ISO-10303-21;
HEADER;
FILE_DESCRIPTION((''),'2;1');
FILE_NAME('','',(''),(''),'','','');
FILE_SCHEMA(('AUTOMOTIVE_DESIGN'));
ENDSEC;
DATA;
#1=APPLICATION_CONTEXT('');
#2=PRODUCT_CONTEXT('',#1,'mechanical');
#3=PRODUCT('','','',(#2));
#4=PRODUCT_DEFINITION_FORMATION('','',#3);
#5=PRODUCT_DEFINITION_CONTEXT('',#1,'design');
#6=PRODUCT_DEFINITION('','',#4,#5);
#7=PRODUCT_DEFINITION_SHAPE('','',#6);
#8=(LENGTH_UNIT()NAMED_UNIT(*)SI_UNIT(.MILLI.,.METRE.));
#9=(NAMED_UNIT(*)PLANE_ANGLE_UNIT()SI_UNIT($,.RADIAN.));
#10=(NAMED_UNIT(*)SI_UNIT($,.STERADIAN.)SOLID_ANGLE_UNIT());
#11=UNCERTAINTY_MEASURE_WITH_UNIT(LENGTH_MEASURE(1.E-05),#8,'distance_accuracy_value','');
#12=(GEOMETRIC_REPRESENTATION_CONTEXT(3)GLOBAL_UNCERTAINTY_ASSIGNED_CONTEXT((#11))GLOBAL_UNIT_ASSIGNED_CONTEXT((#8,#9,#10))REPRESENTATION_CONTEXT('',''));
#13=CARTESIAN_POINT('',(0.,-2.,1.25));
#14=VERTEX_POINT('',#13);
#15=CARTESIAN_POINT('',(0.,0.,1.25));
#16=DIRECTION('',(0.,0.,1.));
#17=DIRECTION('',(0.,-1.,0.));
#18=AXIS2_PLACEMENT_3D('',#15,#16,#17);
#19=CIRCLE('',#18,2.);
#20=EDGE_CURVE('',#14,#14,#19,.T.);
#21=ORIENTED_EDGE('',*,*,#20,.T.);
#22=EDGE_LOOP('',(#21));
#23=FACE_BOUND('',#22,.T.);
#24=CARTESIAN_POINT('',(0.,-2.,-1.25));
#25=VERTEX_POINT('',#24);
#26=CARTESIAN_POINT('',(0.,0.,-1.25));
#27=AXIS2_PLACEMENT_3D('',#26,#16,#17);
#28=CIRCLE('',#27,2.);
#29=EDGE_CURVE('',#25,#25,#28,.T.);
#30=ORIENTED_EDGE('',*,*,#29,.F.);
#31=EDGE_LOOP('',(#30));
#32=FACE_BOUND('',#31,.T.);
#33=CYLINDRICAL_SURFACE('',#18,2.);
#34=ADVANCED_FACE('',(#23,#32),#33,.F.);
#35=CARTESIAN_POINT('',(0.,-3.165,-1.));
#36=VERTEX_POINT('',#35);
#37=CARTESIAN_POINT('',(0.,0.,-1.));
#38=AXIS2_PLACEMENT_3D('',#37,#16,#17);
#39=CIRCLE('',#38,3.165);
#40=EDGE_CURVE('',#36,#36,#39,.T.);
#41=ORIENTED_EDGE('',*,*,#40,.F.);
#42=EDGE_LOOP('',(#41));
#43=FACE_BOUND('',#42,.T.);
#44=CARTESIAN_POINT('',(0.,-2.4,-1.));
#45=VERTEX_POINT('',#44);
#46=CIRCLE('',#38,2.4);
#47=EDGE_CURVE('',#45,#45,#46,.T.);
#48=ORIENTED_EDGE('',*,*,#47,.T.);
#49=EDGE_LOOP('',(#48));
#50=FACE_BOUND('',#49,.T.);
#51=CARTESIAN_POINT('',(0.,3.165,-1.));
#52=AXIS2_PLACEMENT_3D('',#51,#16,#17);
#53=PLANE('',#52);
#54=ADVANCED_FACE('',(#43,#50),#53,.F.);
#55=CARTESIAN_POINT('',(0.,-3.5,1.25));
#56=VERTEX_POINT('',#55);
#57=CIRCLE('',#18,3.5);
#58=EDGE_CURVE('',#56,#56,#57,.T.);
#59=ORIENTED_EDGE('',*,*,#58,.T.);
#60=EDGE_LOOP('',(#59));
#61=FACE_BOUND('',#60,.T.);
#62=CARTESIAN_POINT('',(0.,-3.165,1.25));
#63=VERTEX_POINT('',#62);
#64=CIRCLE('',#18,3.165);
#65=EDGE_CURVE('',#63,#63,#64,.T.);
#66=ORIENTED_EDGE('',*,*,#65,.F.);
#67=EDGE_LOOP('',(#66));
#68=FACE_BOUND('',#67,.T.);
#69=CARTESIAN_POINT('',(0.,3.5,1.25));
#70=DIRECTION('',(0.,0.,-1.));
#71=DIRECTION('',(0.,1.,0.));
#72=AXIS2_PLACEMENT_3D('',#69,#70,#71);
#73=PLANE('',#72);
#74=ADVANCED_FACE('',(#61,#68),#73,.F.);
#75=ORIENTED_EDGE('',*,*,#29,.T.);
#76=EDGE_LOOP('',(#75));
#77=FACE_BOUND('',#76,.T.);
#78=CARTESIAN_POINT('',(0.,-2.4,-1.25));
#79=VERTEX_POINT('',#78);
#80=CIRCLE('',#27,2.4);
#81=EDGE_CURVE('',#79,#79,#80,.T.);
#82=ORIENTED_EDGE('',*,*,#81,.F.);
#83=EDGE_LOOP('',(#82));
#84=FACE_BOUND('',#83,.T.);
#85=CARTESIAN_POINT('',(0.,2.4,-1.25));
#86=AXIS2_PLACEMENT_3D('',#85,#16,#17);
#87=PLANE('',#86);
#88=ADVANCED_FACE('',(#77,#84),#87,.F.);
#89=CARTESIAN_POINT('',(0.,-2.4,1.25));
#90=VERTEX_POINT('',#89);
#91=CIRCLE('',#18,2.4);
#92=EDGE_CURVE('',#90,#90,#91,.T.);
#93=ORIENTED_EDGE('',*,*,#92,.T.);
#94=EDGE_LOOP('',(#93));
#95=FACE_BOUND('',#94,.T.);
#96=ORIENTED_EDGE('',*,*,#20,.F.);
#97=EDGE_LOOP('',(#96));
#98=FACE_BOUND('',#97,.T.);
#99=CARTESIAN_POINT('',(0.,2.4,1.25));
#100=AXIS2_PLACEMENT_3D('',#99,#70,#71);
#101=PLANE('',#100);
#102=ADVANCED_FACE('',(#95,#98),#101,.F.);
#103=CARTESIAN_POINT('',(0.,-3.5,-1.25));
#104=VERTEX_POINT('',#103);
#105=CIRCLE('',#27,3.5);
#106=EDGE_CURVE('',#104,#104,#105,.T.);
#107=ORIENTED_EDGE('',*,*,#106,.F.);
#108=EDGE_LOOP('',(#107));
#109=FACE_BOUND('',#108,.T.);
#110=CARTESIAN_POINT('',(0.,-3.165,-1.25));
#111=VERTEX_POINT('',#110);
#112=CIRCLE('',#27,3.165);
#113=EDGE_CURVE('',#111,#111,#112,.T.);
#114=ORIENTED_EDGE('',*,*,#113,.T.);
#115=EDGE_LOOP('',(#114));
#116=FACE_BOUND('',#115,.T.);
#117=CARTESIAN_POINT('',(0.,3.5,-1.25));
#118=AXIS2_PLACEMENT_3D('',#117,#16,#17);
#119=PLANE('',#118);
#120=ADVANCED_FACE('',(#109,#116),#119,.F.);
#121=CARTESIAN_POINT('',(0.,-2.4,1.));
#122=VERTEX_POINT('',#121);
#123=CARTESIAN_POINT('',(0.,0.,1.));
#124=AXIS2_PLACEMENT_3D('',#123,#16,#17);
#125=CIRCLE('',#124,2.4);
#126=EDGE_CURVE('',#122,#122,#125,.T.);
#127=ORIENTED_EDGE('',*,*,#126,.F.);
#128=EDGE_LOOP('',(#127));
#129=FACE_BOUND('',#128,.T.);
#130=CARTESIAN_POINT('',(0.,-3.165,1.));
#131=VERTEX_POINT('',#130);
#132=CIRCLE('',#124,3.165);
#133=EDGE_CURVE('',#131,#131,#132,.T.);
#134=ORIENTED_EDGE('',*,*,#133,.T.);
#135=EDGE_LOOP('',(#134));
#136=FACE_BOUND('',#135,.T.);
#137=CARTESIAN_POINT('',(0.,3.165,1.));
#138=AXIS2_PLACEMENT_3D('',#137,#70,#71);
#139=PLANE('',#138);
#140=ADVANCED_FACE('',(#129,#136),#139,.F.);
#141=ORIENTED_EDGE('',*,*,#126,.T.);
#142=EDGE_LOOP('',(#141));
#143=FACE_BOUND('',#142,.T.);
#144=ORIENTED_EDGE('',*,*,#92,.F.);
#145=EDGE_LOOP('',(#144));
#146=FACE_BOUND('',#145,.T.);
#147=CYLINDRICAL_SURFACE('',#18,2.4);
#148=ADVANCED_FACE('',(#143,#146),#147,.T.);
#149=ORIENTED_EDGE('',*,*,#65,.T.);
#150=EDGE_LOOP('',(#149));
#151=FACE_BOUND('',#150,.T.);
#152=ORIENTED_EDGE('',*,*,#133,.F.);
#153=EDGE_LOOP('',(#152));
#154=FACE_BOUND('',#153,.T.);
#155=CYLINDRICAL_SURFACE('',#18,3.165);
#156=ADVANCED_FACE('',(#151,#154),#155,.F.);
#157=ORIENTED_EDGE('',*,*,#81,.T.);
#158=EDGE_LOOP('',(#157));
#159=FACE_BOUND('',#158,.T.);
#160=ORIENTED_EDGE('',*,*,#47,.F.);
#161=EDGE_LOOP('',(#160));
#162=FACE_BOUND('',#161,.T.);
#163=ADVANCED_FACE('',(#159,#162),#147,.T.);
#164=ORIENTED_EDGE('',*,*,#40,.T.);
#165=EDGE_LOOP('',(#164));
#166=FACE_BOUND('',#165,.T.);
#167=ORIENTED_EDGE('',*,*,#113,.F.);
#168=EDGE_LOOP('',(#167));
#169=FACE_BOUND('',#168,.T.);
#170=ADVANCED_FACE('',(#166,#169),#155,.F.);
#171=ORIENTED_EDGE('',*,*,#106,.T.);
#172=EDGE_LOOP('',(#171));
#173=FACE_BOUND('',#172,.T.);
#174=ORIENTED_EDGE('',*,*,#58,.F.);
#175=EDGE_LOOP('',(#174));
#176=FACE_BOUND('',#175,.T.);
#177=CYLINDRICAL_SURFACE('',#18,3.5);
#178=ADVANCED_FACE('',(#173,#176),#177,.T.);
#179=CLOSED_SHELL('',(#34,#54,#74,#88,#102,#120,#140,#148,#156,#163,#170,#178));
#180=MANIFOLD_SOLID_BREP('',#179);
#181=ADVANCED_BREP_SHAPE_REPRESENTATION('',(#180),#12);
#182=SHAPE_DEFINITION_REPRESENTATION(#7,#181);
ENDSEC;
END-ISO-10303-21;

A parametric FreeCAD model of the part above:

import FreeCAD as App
import Part
import Sketcher
from FreeCAD import Vector

doc = App.newDocument("Part")
params = doc.addObject("Spreadsheet::Sheet", "Params")
for row, (alias, value) in enumerate([
    ("sketch1_width", "0.4 mm"),
    ("sketch1_height", "2.5 mm"),
    ("revolution_angle", "360 deg"),
], start=1):
    params.set(f"A{row}", alias)
    params.set(f"B{row}", "=" + value)
    params.setAlias(f"B{row}", alias)

body = doc.addObject("PartDesign::Body", "Body")

sketch1 = body.newObject("Sketcher::SketchObject", "Sketch")
sketch1.AttachmentSupport = (doc.getObject("YZ_Plane"), [""])
sketch1.MapMode = "FlatFace"
sketch1.addGeometry(Part.LineSegment(Vector(3.5, -1.25, 0), Vector(3.5, 1.25, 0)), False)
sketch1.addGeometry(Part.LineSegment(Vector(3.5, 1.25, 0), Vector(3.17, 1.25, 0)), False)
sketch1.addGeometry(Part.LineSegment(Vector(3.17, 1.25, 0), Vector(3.17, 1, 0)), False)
sketch1.addGeometry(Part.LineSegment(Vector(3.17, 1, 0), Vector(2.4, 1, 0)), False)
sketch1.addGeometry(Part.LineSegment(Vector(2.4, 1, 0), Vector(2.4, 1.25, 0)), False)
sketch1.addGeometry(Part.LineSegment(Vector(2.4, 1.25, 0), Vector(2, 1.25, 0)), False)
sketch1.addGeometry(Part.LineSegment(Vector(2, 1.25, 0), Vector(2, -1.25, 0)), False)
sketch1.addGeometry(Part.LineSegment(Vector(2, -1.25, 0), Vector(2.4, -1.25, 0)), False)
sketch1.addGeometry(Part.LineSegment(Vector(2.4, -1.25, 0), Vector(2.4, -1, 0)), False)
sketch1.addGeometry(Part.LineSegment(Vector(2.4, -1, 0), Vector(3.17, -1, 0)), False)
sketch1.addGeometry(Part.LineSegment(Vector(3.17, -1, 0), Vector(3.17, -1.25, 0)), False)
sketch1.addGeometry(Part.LineSegment(Vector(3.17, -1.25, 0), Vector(3.5, -1.25, 0)), False)
sketch1.addConstraint(Sketcher.Constraint("Coincident", 0, 2, 1, 1))
sketch1.addConstraint(Sketcher.Constraint("Coincident", 1, 2, 2, 1))
sketch1.addConstraint(Sketcher.Constraint("Coincident", 2, 2, 3, 1))
sketch1.addConstraint(Sketcher.Constraint("Coincident", 3, 2, 4, 1))
sketch1.addConstraint(Sketcher.Constraint("Coincident", 4, 2, 5, 1))
sketch1.addConstraint(Sketcher.Constraint("Coincident", 5, 2, 6, 1))
sketch1.addConstraint(Sketcher.Constraint("Coincident", 6, 2, 7, 1))
sketch1.addConstraint(Sketcher.Constraint("Coincident", 7, 2, 8, 1))
sketch1.addConstraint(Sketcher.Constraint("Coincident", 8, 2, 9, 1))
sketch1.addConstraint(Sketcher.Constraint("Coincident", 9, 2, 10, 1))
sketch1.addConstraint(Sketcher.Constraint("Coincident", 10, 2, 11, 1))
sketch1.addConstraint(Sketcher.Constraint("Coincident", 11, 2, 0, 1))
sketch1.addConstraint(Sketcher.Constraint("Vertical", 0))
sketch1.addConstraint(Sketcher.Constraint("Horizontal", 1))
sketch1.addConstraint(Sketcher.Constraint("Vertical", 2))
sketch1.addConstraint(Sketcher.Constraint("Horizontal", 3))
sketch1.addConstraint(Sketcher.Constraint("Vertical", 4))
sketch1.addConstraint(Sketcher.Constraint("Horizontal", 5))
sketch1.addConstraint(Sketcher.Constraint("Vertical", 6))
sketch1.addConstraint(Sketcher.Constraint("Horizontal", 7))
sketch1.addConstraint(Sketcher.Constraint("Vertical", 8))
sketch1.addConstraint(Sketcher.Constraint("Horizontal", 9))
sketch1.addConstraint(Sketcher.Constraint("Vertical", 10))
sketch1.addConstraint(Sketcher.Constraint("Horizontal", 11))
sketch1.addConstraint(Sketcher.Constraint("Symmetric", 4, 2, 7, 2, -1))
sketch1.addConstraint(Sketcher.Constraint("Symmetric", 2, 2, 9, 2, -1))
sketch1.addConstraint(Sketcher.Constraint("Horizontal", 1, 2, 4, 2))
sketch1.addConstraint(Sketcher.Constraint("Horizontal", 7, 2, 10, 2))
sketch1.addConstraint(Sketcher.Constraint("DistanceX", 5, 2, 5, 1, 0.4))
sketch1.addConstraint(Sketcher.Constraint("DistanceY", 0, 1, 0, 2, 2.5))
sketch1.addConstraint(Sketcher.Constraint("DistanceY", -1, 1, 2, 2, 1.0))
sketch1.addConstraint(Sketcher.Constraint("DistanceX", -1, 1, 5, 2, 2.0))
sketch1.addConstraint(Sketcher.Constraint("DistanceX", -1, 1, 0, 2, 3.5))
sketch1.addConstraint(Sketcher.Constraint("DistanceX", 1, 2, 1, 1, 0.335))
sketch1.setExpression("Constraints[28]", "Params.sketch1_width")
sketch1.setExpression("Constraints[29]", "Params.sketch1_height")
revolution = body.newObject("PartDesign::Revolution", "Revolution")
revolution.Profile = sketch1
revolution.ReferenceAxis = (sketch1, ["V_Axis"])
revolution.setExpression("Angle", "Params.revolution_angle")

doc.recompute()
